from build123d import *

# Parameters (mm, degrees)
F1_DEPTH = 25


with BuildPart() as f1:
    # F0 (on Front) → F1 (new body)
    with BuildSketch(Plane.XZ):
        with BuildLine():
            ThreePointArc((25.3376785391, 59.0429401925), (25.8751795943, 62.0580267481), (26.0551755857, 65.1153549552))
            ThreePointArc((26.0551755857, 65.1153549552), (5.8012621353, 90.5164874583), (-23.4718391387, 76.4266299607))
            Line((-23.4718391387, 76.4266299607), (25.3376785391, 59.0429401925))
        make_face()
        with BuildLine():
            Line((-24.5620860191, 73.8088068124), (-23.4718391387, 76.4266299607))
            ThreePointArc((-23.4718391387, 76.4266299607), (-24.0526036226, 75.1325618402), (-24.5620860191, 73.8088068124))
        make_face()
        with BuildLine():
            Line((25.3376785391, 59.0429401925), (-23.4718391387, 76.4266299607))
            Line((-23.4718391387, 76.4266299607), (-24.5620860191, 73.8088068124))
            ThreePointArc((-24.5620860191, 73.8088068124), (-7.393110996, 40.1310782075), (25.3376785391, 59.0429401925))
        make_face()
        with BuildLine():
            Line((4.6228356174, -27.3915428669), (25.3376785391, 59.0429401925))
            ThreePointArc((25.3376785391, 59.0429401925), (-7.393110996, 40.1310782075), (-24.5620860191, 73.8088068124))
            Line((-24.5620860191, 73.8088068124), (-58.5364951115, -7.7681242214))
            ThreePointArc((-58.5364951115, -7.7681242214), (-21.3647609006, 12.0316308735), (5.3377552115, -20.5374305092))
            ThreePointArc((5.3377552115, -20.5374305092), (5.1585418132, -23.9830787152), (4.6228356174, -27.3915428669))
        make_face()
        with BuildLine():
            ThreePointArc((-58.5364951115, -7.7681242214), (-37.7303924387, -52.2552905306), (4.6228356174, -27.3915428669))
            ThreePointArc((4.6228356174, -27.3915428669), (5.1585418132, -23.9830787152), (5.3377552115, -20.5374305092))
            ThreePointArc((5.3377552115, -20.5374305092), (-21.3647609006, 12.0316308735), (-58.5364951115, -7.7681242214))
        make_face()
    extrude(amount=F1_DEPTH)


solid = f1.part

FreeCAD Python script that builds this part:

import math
import FreeCAD as App
import Part
import Sketcher
Q = App.Units.Quantity

doc = App.newDocument("Part")
body = doc.addObject("PartDesign::Body", "Body")

# Sketch on XZ plane
sketch1 = body.newObject("Sketcher::SketchObject", "Sketch")
sketch1.AttachmentSupport = (doc.getObject("XZ_Plane"), [""])
sketch1.MapMode = "FlatFace"
sketch1.addGeometry(Part.ArcOfCircle(Part.Circle(App.Vector(0, 65.115355, 0), App.Vector(0, 0, 1), 26.055176), math.radians(-13.477284), math.radians(0)), False)
sketch1.addGeometry(Part.ArcOfCircle(Part.Circle(App.Vector(0, 65.115355, 0), App.Vector(0, 0, 1), 26.055176), math.radians(0), math.radians(154.270195)), False)
sketch1.addGeometry(Part.ArcOfCircle(Part.Circle(App.Vector(0, 65.115355, 0), App.Vector(0, 0, 1), 26.055176), math.radians(154.270195), math.radians(160.509201)), False)
sketch1.addGeometry(Part.LineSegment(App.Vector(-24.562086, 73.808807, 0), App.Vector(-58.536495, -7.768124, 0)), False)
sketch1.addGeometry(Part.ArcOfCircle(Part.Circle(App.Vector(-27.875746, -20.537431, 0), App.Vector(0, 0, 1), 33.213502), math.radians(157.389698), math.radians(348.090569)), False)
sketch1.addGeometry(Part.LineSegment(App.Vector(4.622836, -27.391543, 0), App.Vector(25.337679, 59.04294, 0)), False)
sketch1.addConstraint(Sketcher.Constraint("Coincident", 0, 2, 1, 1))
sketch1.addConstraint(Sketcher.Constraint("Coincident", 1, 2, 2, 1))
sketch1.addConstraint(Sketcher.Constraint("Coincident", 2, 2, 3, 1))
sketch1.addConstraint(Sketcher.Constraint("Coincident", 3, 2, 4, 1))
sketch1.addConstraint(Sketcher.Constraint("Coincident", 4, 2, 5, 1))
sketch1.addConstraint(Sketcher.Constraint("Coincident", 5, 2, 0, 1))
sketch1.addConstraint(Sketcher.Constraint("Coincident", 1, 3, 0, 3))
sketch1.addConstraint(Sketcher.Constraint("Coincident", 2, 3, 0, 3))
sketch1.addConstraint(Sketcher.Constraint("PointOnObject", 0, 3, -2))
sketch1.addConstraint(Sketcher.Constraint("Radius", 4, Q("33.213502 mm")))
sketch1.addConstraint(Sketcher.Constraint("Radius", 0, Q("26.055176 mm")))
sketch1.addConstraint(Sketcher.Constraint("DistanceY", 4, 3, -1, 1, Q("20.537431 mm")))
sketch1.addConstraint(Sketcher.Constraint("DistanceX", 1, 2, -1, 1, Q("23.471839 mm")))
sketch1.addConstraint(Sketcher.Constraint("DistanceY", -1, 1, 1, 2, Q("76.42663 mm")))
sketch1.addConstraint(Sketcher.Constraint("DistanceX", -1, 1, 5, 2, Q("25.337679 mm")))
sketch1.addConstraint(Sketcher.Constraint("DistanceY", 1, 3, 2, 2, Q("8.693452 mm")))
sketch1.addConstraint(Sketcher.Constraint("DistanceY", 0, 2, 2, 2, Q("8.693452 mm")))
sketch1.addConstraint(Sketcher.Constraint("DistanceX", 3, 2, 4, 3, Q("30.660749 mm")))
sketch1.addConstraint(Sketcher.Constraint("DistanceX", 3, 2, 2, 2, Q("33.974409 mm")))
sketch1.addConstraint(Sketcher.Constraint("DistanceX", 3, 2, 4, 2, Q("63.159331 mm")))
pad1 = body.newObject("PartDesign::Pad", "Pad")
pad1.Profile = sketch1
pad1.Length = 25

doc.recompute()
